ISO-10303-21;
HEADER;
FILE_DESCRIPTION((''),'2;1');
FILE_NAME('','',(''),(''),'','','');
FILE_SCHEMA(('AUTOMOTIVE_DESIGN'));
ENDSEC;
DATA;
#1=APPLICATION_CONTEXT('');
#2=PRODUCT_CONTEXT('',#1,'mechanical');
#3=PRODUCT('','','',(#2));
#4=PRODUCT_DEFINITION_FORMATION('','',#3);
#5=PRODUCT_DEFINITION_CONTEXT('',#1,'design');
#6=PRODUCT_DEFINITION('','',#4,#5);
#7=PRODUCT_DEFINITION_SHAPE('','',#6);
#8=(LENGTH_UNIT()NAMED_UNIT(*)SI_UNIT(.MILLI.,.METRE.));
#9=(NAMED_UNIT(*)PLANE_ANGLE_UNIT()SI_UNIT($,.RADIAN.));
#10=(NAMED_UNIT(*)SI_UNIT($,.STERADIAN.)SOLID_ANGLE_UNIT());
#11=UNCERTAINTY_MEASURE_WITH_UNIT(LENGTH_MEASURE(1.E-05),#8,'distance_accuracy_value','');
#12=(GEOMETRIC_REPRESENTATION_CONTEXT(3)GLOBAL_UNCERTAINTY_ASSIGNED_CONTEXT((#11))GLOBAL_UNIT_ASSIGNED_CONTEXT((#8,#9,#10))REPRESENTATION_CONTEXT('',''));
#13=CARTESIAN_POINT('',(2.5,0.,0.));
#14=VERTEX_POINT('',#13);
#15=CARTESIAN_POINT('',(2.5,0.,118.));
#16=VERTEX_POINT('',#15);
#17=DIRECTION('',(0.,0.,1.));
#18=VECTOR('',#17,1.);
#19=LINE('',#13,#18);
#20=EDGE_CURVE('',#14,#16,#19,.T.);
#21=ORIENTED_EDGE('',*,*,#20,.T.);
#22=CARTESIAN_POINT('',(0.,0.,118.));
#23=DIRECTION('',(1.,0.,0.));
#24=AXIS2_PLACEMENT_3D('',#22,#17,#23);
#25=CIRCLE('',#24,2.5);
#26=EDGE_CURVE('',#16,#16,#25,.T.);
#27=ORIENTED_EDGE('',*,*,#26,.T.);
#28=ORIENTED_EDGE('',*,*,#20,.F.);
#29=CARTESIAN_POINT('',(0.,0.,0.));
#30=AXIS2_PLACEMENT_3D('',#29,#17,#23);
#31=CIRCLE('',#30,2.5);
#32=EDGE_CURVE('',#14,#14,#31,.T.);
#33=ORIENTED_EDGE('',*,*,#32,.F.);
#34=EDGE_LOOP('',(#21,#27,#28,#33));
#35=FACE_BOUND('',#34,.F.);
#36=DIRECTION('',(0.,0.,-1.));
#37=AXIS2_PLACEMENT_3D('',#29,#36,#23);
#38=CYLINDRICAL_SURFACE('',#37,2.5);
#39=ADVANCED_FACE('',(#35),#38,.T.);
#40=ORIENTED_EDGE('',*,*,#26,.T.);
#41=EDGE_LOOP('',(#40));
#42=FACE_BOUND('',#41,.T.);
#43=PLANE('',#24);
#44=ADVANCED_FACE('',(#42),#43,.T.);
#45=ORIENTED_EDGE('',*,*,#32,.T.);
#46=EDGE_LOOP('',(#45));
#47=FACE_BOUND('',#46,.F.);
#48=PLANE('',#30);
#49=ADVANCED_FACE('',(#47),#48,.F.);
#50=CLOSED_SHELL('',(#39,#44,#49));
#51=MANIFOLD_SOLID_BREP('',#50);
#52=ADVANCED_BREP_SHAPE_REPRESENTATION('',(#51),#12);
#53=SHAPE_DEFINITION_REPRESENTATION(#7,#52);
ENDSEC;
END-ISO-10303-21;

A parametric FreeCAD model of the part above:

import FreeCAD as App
import Part
import Sketcher
from FreeCAD import Vector

doc = App.newDocument("Part")
body = doc.addObject("PartDesign::Body", "Body")

# Sketch on XY plane
sketch1 = body.newObject("Sketcher::SketchObject", "Sketch")
sketch1.AttachmentSupport = (doc.getObject("XY_Plane"), [""])
sketch1.MapMode = "FlatFace"
sketch1.addGeometry(Part.Circle(Vector(0, 0, 0), Vector(0, 0, 1), 2.5), False)
sketch1.addConstraint([
    Sketcher.Constraint("Coincident", 0, 3, -1, 1),
    Sketcher.Constraint("Diameter", 0, 5.0),
])
pad1 = body.newObject("PartDesign::Pad", "Pad")
pad1.Profile = sketch1
pad1.Length = 118

doc.recompute()
